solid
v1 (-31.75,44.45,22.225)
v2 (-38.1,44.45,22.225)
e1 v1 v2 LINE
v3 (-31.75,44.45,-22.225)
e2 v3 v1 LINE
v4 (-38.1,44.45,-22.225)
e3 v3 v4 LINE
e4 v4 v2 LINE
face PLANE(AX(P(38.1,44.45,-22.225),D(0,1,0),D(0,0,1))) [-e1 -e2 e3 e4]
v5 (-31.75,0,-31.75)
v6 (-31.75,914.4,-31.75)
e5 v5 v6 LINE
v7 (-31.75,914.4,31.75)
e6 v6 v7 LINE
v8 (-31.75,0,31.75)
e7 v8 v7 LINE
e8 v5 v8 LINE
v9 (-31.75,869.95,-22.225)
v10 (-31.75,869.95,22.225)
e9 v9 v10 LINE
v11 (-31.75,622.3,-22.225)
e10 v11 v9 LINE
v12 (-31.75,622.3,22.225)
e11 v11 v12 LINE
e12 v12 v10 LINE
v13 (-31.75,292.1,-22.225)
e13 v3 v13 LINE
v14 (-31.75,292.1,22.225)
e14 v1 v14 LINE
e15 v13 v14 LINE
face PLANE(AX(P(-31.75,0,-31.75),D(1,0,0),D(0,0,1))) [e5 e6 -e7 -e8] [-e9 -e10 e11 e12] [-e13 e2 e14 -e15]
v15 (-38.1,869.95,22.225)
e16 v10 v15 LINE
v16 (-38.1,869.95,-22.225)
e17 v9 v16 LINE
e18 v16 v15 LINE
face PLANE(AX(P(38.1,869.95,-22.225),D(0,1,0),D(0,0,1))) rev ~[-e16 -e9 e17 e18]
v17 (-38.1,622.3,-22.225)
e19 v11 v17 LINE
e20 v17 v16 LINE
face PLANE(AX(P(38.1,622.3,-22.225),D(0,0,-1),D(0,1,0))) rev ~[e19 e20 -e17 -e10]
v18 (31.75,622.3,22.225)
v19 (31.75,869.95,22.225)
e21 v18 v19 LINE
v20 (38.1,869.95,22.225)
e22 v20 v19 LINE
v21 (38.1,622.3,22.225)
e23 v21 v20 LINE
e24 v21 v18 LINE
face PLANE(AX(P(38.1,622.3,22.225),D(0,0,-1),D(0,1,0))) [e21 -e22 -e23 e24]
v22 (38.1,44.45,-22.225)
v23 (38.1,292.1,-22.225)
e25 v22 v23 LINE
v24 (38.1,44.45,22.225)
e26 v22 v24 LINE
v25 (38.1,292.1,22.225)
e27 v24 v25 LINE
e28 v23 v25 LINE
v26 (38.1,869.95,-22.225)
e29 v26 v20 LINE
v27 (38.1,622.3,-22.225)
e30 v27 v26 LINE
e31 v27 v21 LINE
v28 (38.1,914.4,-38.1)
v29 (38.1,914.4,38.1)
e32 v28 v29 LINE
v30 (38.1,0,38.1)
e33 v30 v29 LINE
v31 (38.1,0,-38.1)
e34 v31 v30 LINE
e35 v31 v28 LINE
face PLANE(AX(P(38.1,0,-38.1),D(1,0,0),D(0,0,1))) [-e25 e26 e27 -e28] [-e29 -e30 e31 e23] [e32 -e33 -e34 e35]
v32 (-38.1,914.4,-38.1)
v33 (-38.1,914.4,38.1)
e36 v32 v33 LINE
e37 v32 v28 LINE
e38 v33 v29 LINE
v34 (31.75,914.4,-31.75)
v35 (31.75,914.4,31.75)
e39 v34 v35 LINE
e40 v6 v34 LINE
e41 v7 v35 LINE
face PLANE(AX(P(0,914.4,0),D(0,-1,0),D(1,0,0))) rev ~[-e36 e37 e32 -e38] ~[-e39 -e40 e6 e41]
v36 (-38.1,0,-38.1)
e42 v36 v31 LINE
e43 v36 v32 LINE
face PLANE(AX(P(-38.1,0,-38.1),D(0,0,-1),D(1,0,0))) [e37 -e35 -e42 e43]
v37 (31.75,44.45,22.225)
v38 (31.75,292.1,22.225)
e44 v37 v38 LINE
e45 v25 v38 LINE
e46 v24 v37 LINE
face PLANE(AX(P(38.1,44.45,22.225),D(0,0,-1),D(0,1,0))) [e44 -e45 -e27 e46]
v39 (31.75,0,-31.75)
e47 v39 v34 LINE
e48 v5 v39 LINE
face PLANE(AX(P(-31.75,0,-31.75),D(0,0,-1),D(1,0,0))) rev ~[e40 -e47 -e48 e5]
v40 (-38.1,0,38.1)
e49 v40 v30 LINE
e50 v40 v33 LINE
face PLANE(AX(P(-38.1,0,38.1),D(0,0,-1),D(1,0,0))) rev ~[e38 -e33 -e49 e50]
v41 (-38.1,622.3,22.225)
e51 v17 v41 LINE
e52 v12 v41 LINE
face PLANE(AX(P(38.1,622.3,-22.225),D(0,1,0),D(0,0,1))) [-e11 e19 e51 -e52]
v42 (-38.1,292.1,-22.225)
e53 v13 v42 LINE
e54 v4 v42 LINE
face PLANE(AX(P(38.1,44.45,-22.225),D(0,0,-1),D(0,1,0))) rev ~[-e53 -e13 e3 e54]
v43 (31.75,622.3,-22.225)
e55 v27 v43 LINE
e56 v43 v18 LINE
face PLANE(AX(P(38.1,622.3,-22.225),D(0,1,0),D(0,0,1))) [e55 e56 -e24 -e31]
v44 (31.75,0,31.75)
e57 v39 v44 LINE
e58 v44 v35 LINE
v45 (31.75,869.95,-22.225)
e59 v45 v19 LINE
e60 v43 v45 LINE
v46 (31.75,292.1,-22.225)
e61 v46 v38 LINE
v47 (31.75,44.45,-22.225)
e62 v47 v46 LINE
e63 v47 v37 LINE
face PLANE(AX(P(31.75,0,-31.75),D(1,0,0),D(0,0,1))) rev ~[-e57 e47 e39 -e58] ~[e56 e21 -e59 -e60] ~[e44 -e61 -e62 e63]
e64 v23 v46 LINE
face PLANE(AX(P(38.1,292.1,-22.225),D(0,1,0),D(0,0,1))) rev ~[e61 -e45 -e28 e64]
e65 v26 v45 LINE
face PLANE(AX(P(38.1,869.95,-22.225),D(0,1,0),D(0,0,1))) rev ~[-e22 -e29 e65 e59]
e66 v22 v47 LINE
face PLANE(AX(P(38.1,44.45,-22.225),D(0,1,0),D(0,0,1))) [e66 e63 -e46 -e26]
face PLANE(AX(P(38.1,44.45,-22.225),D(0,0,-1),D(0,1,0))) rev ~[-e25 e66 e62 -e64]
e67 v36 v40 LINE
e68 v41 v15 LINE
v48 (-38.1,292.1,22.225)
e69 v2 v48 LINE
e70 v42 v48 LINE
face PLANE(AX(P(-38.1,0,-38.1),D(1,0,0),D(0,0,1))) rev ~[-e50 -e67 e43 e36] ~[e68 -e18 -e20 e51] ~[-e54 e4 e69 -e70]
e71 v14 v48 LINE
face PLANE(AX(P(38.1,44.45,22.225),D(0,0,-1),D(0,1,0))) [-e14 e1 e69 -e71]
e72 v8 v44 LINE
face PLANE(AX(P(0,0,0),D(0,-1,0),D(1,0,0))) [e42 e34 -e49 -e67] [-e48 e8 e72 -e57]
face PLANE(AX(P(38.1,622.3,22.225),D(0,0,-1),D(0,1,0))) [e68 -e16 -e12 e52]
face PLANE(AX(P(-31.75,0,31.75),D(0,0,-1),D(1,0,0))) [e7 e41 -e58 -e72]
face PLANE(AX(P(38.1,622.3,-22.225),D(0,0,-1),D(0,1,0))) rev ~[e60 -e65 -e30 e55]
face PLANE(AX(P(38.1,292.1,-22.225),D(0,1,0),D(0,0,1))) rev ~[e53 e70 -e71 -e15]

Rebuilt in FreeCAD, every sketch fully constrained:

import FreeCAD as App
import Part
import Sketcher
from FreeCAD import Vector
Q = App.Units.Quantity

doc = App.newDocument("Part")
params = doc.addObject("Spreadsheet::Sheet", "Params")
for row, (alias, value) in enumerate([
    ("sketch1_width", "3 in"),
    ("sketch1_width2", "2.5 in"),
    ("pad1_length", "36 in"),
    ("sketch2_width", "9.75 in"),
    ("sketch2_height", "1.75 in"),
], start=1):
    params.set(f"A{row}", alias)
    params.set(f"B{row}", "=" + value)
    params.setAlias(f"B{row}", alias)

body = doc.addObject("PartDesign::Body", "Body")

# Sketch on XZ plane
sketch1 = body.newObject("Sketcher::SketchObject", "Sketch")
sketch1.AttachmentSupport = (doc.getObject("XZ_Plane"), [""])
sketch1.MapMode = "FlatFace"
sketch1.addGeometry([
    Part.LineSegment(Vector(-38, 38, 0), Vector(-38, -38, 0)),  # 0
    Part.LineSegment(Vector(-38, -38, 0), Vector(38, -38, 0)),  # 1
    Part.LineSegment(Vector(38, -38, 0), Vector(38, 38, 0)),  # 2
    Part.LineSegment(Vector(38, 38, 0), Vector(-38, 38, 0)),  # 3
    Part.LineSegment(Vector(32, -32, 0), Vector(-32, -32, 0)),  # 4
    Part.LineSegment(Vector(-32, -32, 0), Vector(-32, 32, 0)),  # 5
    Part.LineSegment(Vector(-32, 32, 0), Vector(32, 32, 0)),  # 6
    Part.LineSegment(Vector(32, 32, 0), Vector(32, -32, 0)),  # 7
], False)
sketch1.addConstraint([
    Sketcher.Constraint("Coincident", 0, 2, 1, 1),
    Sketcher.Constraint("Coincident", 1, 2, 2, 1),
    Sketcher.Constraint("Coincident", 2, 2, 3, 1),
    Sketcher.Constraint("Coincident", 3, 2, 0, 1),
    Sketcher.Constraint("Coincident", 4, 2, 5, 1),
    Sketcher.Constraint("Coincident", 5, 2, 6, 1),
    Sketcher.Constraint("Coincident", 6, 2, 7, 1),
    Sketcher.Constraint("Coincident", 7, 2, 4, 1),
    Sketcher.Constraint("Vertical", 0),
    Sketcher.Constraint("Horizontal", 1),
    Sketcher.Constraint("Vertical", 2),
    Sketcher.Constraint("Horizontal", 3),
    Sketcher.Constraint("Horizontal", 4),
    Sketcher.Constraint("Vertical", 5),
    Sketcher.Constraint("Horizontal", 6),
    Sketcher.Constraint("Vertical", 7),
    Sketcher.Constraint("Symmetric", 0, 2, 2, 2, -1, 1),
    Sketcher.Constraint("Symmetric", 4, 2, 6, 2, -1, 1),
    Sketcher.Constraint("Equal", 3, 0),
    Sketcher.Constraint("Equal", 6, 5),
    Sketcher.Constraint("DistanceX", 1, 1, 1, 2, Q("3 in")),
    Sketcher.Constraint("DistanceX", 4, 2, 4, 1, Q("2.5 in")),
])
sketch1.setExpression("Constraints[20]", "Params.sketch1_width")
sketch1.setExpression("Constraints[21]", "Params.sketch1_width2")
pad1 = body.newObject("PartDesign::Pad", "Pad")
pad1.Profile = sketch1
pad1.setExpression("Length", "Params.pad1_length")
pad1.Reversed = True

# Sketch on YZ plane
sketch2 = body.newObject("Sketcher::SketchObject", "Sketch001")
sketch2.AttachmentSupport = (doc.getObject("YZ_Plane"), [""])
sketch2.MapMode = "FlatFace"
sketch2.AttachmentOffset = App.Placement(Vector(0, 0, 1.5 * 25.4), App.Rotation())
sketch2.addGeometry([
    Part.LineSegment(Vector(44, 22, 0), Vector(44, -22, 0)),  # 0
    Part.LineSegment(Vector(44, -22, 0), Vector(292, -22, 0)),  # 1
    Part.LineSegment(Vector(292, -22, 0), Vector(292, 22, 0)),  # 2
    Part.LineSegment(Vector(292, 22, 0), Vector(44, 22, 0)),  # 3
    Part.LineSegment(Vector(622, 22, 0), Vector(622, -22, 0)),  # 4
    Part.LineSegment(Vector(622, -22, 0), Vector(870, -22, 0)),  # 5
    Part.LineSegment(Vector(870, -22, 0), Vector(870, 22, 0)),  # 6
    Part.LineSegment(Vector(870, 22, 0), Vector(622, 22, 0)),  # 7
], False)
sketch2.addConstraint([
    Sketcher.Constraint("Coincident", 0, 2, 1, 1),
    Sketcher.Constraint("Coincident", 1, 2, 2, 1),
    Sketcher.Constraint("Coincident", 2, 2, 3, 1),
    Sketcher.Constraint("Coincident", 3, 2, 0, 1),
    Sketcher.Constraint("Coincident", 4, 2, 5, 1),
    Sketcher.Constraint("Coincident", 5, 2, 6, 1),
    Sketcher.Constraint("Coincident", 6, 2, 7, 1),
    Sketcher.Constraint("Coincident", 7, 2, 4, 1),
    Sketcher.Constraint("Vertical", 0),
    Sketcher.Constraint("Horizontal", 1),
    Sketcher.Constraint("Vertical", 2),
    Sketcher.Constraint("Horizontal", 3),
    Sketcher.Constraint("Vertical", 4),
    Sketcher.Constraint("Horizontal", 5),
    Sketcher.Constraint("Vertical", 6),
    Sketcher.Constraint("Horizontal", 7),
    Sketcher.Constraint("Horizontal", 1, 2, 4, 2),
    Sketcher.Constraint("Horizontal", 3, 2, 6, 2),
    Sketcher.Constraint("Equal", 3, 5),
    Sketcher.Constraint("DistanceX", 1, 2, 4, 2, Q("13 in")),
    Sketcher.Constraint("DistanceX", 1, 1, 1, 2, Q("9.75 in")),
    Sketcher.Constraint("DistanceY", 0, 2, 0, 1, Q("1.75 in")),
    Sketcher.Constraint("DistanceX", -1, 1, 1, 2, Q("11.5 in")),
    Sketcher.Constraint("DistanceY", 0, 2, -1, 1, Q("0.875 in")),
])
sketch2.setExpression("Constraints[20]", "Params.sketch2_width")
sketch2.setExpression("Constraints[21]", "Params.sketch2_height")
pocket1 = body.newObject("PartDesign::Pocket", "Pocket")
pocket1.Profile = sketch2
pocket1.Type = "ThroughAll"

doc.recompute()
